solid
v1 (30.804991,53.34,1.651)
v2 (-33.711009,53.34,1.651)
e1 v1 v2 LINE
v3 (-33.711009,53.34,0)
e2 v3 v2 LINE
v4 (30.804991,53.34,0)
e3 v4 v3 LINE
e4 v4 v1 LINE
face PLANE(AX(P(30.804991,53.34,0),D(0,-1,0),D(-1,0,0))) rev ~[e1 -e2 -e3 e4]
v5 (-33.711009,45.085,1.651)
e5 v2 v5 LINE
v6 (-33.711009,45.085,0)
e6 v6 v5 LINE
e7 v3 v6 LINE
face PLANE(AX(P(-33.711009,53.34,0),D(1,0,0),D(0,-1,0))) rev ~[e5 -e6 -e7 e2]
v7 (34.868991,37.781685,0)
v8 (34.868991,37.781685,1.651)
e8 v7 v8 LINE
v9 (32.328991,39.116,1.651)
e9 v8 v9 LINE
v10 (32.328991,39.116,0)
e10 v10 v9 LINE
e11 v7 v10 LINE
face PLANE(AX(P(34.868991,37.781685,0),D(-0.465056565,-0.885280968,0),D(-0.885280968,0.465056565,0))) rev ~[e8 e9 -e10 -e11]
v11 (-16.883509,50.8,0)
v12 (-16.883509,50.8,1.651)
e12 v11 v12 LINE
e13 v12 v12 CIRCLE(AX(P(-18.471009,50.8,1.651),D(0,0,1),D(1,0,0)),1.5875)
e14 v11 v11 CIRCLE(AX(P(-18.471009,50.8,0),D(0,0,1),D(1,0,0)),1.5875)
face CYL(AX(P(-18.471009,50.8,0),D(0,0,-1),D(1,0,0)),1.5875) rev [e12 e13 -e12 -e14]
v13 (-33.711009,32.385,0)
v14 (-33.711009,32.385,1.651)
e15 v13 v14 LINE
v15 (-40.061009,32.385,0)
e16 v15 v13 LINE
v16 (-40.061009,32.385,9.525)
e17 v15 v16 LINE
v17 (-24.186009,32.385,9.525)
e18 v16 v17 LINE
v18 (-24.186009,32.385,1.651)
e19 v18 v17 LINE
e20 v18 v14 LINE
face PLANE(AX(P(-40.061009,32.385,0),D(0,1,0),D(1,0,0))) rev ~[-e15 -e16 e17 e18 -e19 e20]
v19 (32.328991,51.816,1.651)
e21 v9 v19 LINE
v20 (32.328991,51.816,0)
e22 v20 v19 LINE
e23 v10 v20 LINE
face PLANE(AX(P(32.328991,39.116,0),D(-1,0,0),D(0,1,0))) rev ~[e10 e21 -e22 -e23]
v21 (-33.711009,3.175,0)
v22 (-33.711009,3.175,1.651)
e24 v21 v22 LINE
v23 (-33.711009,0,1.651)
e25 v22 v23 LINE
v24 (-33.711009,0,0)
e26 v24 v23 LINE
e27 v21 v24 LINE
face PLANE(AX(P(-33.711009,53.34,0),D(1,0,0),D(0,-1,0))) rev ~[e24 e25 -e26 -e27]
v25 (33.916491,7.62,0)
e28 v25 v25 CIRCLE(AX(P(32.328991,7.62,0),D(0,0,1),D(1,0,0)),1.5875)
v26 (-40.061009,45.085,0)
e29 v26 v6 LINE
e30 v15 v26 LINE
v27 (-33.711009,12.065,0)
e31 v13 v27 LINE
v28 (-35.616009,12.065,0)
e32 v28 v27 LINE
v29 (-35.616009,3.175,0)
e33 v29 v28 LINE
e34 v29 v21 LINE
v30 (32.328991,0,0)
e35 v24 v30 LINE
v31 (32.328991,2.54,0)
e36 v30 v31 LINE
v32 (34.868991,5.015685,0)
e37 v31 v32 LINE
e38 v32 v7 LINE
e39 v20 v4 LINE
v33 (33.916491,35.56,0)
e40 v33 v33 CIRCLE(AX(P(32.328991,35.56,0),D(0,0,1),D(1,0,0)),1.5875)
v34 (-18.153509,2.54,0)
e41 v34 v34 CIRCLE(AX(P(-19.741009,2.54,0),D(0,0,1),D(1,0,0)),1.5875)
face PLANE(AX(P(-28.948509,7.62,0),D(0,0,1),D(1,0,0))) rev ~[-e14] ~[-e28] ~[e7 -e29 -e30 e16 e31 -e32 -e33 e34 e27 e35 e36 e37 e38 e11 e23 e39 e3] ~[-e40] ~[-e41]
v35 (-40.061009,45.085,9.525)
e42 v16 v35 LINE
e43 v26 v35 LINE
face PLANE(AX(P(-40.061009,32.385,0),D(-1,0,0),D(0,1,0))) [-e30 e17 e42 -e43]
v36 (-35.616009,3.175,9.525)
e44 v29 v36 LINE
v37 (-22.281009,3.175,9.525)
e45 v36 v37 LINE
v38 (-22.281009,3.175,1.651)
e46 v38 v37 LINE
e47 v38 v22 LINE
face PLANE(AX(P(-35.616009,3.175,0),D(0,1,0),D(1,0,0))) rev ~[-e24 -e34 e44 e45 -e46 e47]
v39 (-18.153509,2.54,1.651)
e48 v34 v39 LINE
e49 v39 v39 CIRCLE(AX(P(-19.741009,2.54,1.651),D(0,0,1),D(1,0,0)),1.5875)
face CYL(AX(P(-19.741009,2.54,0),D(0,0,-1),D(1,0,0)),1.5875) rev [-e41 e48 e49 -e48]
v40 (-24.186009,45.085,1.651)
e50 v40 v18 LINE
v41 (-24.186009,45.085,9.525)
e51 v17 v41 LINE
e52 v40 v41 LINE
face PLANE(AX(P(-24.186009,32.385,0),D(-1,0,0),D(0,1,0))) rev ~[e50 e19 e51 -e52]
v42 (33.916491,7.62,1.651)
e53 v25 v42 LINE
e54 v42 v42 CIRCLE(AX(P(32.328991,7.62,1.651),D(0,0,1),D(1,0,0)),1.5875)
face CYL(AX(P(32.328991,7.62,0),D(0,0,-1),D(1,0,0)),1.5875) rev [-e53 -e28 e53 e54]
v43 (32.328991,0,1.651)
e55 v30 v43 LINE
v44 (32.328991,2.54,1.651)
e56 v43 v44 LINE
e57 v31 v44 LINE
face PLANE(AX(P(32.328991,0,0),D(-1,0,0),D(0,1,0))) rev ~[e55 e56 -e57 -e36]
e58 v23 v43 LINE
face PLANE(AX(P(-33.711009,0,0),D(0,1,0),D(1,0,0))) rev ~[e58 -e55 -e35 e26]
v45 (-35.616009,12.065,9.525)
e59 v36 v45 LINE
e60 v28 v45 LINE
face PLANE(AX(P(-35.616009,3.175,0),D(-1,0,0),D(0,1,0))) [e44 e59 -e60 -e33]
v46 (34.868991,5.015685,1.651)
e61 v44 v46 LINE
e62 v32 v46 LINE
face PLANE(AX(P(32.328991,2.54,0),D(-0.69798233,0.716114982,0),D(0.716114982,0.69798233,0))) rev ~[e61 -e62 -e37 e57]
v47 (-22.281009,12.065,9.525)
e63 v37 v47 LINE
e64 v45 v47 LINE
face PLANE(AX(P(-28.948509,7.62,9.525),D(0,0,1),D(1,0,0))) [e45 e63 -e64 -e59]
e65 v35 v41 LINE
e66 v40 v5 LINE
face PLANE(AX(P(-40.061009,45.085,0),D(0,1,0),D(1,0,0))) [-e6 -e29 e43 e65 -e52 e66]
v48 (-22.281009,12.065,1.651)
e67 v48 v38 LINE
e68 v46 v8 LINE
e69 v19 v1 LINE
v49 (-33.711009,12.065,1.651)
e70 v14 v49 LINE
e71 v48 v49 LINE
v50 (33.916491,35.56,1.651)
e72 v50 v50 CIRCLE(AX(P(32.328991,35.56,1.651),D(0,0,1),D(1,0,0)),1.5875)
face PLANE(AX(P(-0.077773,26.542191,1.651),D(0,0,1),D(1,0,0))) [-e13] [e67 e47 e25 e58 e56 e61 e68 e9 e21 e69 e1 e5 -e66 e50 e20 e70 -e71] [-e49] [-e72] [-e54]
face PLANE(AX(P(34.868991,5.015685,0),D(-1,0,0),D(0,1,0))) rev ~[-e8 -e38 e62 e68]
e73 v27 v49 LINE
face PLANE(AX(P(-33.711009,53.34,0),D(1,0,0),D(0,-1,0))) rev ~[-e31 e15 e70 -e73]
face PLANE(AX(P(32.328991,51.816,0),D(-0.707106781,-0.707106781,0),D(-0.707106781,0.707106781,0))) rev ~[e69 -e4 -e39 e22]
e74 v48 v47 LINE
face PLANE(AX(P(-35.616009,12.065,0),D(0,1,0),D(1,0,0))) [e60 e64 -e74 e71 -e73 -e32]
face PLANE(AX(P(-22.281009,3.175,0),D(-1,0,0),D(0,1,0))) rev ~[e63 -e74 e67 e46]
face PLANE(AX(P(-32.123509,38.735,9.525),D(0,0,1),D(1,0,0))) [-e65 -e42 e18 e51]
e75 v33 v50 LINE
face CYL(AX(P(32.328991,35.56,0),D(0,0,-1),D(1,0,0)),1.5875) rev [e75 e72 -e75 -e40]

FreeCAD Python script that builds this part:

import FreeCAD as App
import Part
import Sketcher

V = App.Vector
Q = App.Units.Quantity


def add_polygon(sketch, points):
    """Adds a closed chain of lines whose ends are joined by coincident constraints."""
    first, n = sketch.GeometryCount, len(points)
    for a, b in zip(points, points[1:] + points[:1]):
        sketch.addGeometry(Part.LineSegment(App.Vector(*a, 0), App.Vector(*b, 0)), False)
    for i in range(n):
        sketch.addConstraint(Sketcher.Constraint("Coincident", first + i, 2, first + (i + 1) % n, 1))

doc = App.newDocument("Part")
body = doc.addObject("PartDesign::Body", "Body")

# Sketch on XY plane
sketch1 = body.newObject("Sketcher::SketchObject", "Sketch")
sketch1.AttachmentSupport = (doc.getObject("XY_Plane"), [""])
sketch1.MapMode = "FlatFace"
add_polygon(sketch1, [(-33.7, 53.3), (-33.7, 0), (32.3, 0), (32.3, 2.5), (34.9, 5), (34.9, 37.8), (32.3, 39.1), (32.3, 51.8), (30.8, 53.3)])  # lines 0-8
sketch1.addGeometry(Part.Circle(V(-19.7, 2.5, 0), V(0, 0, 1), 1.6), False)  # 9
sketch1.addGeometry(Part.Circle(V(32.3, 7.6, 0), V(0, 0, 1), 1.6), False)  # 10
sketch1.addGeometry(Part.Circle(V(-18.5, 50.8, 0), V(0, 0, 1), 1.6), False)  # 11
sketch1.addGeometry(Part.Circle(V(32.3, 35.6, 0), V(0, 0, 1), 1.6), False)  # 12
sketch1.addConstraint(Sketcher.Constraint("Vertical", 0))
sketch1.addConstraint(Sketcher.Constraint("Horizontal", 1))
sketch1.addConstraint(Sketcher.Constraint("Vertical", 2))
sketch1.addConstraint(Sketcher.Constraint("Vertical", 4))
sketch1.addConstraint(Sketcher.Constraint("Vertical", 6))
sketch1.addConstraint(Sketcher.Constraint("Horizontal", 8))
sketch1.addConstraint(Sketcher.Constraint("Equal", 9, 10))
sketch1.addConstraint(Sketcher.Constraint("Equal", 10, 11))
sketch1.addConstraint(Sketcher.Constraint("Equal", 11, 12))
sketch1.addConstraint(Sketcher.Constraint("PointOnObject", 0, 2, -1))
sketch1.addConstraint(Sketcher.Constraint("Horizontal", 9, 3, 2, 2))
sketch1.addConstraint(Sketcher.Constraint("Vertical", 10, 3, 12, 3))
sketch1.addConstraint(Sketcher.Constraint("Vertical", 12, 3, 1, 2))
sketch1.addConstraint(Sketcher.Constraint("Vertical", 2, 2, 5, 2))
sketch1.addConstraint(Sketcher.Constraint("Diameter", 9, Q("0.125 in")))
sketch1.addConstraint(Sketcher.Constraint("DistanceX", 1, 1, 1, 2, Q("2.6 in")))
sketch1.addConstraint(Sketcher.Constraint("DistanceY", 0, 2, 0, 1, Q("2.1 in")))
sketch1.addConstraint(Sketcher.Constraint("DistanceY", 2, 1, 2, 2, Q("0.1 in")))
sketch1.addConstraint(Sketcher.Constraint("DistanceY", 6, 1, 6, 2, Q("0.5 in")))
sketch1.addConstraint(Sketcher.Constraint("DistanceY", -1, 1, 11, 3, Q("2 in")))
sketch1.addConstraint(Sketcher.Constraint("Angle", 7, Q("135 deg")))
sketch1.addConstraint(Sketcher.Constraint("DistanceX", 11, 3, 10, 3, Q("2 in")))
sketch1.addConstraint(Sketcher.Constraint("DistanceX", 8, 2, 8, 1, Q("2.54 in")))
sketch1.addConstraint(Sketcher.Constraint("DistanceY", 4, 1, 4, 2, Q("1.29 in")))
sketch1.addConstraint(Sketcher.Constraint("DistanceY", -1, 1, 10, 3, Q("0.3 in")))
sketch1.addConstraint(Sketcher.Constraint("DistanceY", -1, 1, 12, 3, Q("1.4 in")))
sketch1.addConstraint(Sketcher.Constraint("DistanceX", 2, 2, 3, 2, Q("0.1 in")))
sketch1.addConstraint(Sketcher.Constraint("DistanceX", 9, 3, 10, 3, Q("2.05 in")))
sketch1.addConstraint(Sketcher.Constraint("DistanceX", 9, 3, -1, 1, 19.741009))
sketch1.addConstraint(Sketcher.Constraint("Distance", 3, 3.546916))
pad1 = body.newObject("PartDesign::Pad", "Pad")
pad1.Profile = sketch1
pad1.Length = Q("0.065 in")

# Sketch on XY plane
sketch2 = body.newObject("Sketcher::SketchObject", "Sketch001")
sketch2.AttachmentSupport = (doc.getObject("XY_Plane"), [""])
sketch2.MapMode = "FlatFace"
add_polygon(sketch2, [(-36, 12), (-36, 3), (-22, 3), (-22, 12)])  # lines 0-3
add_polygon(sketch2, [(-40, 45), (-40, 32), (-24, 32), (-24, 45)])  # lines 4-7
sketch2.addConstraint(Sketcher.Constraint("Vertical", 0))
sketch2.addConstraint(Sketcher.Constraint("Horizontal", 1))
sketch2.addConstraint(Sketcher.Constraint("Vertical", 2))
sketch2.addConstraint(Sketcher.Constraint("Horizontal", 3))
sketch2.addConstraint(Sketcher.Constraint("Vertical", 4))
sketch2.addConstraint(Sketcher.Constraint("Horizontal", 5))
sketch2.addConstraint(Sketcher.Constraint("Vertical", 6))
sketch2.addConstraint(Sketcher.Constraint("Horizontal", 7))
sketch2.addConstraint(Sketcher.Constraint("DistanceY", 4, 2, 4, 1, Q("0.5 in")))
sketch2.addConstraint(Sketcher.Constraint("DistanceY", 0, 2, 0, 1, Q("0.35 in")))
sketch2.addConstraint(Sketcher.Constraint("DistanceY", 3, 2, 4, 2, Q("0.8 in")))
sketch2.addConstraint(Sketcher.Constraint("DistanceX", 4, 2, 2, 2, Q("0.7 in")))
sketch2.addConstraint(Sketcher.Constraint("DistanceX", 1, 1, 1, 2, Q("0.525 in")))
sketch2.addConstraint(Sketcher.Constraint("DistanceX", 5, 1, 5, 2, Q("0.625 in")))
sketch2.addConstraint(Sketcher.Constraint("DistanceY", -1, 1, 0, 2, Q("0.125 in")))
sketch2.addConstraint(Sketcher.Constraint("DistanceX", 0, 2, -1, 1, 35.616009))
pad2 = body.newObject("PartDesign::Pad", "Pad001")
pad2.Profile = sketch2
pad2.Length = Q("0.375 in")

doc.recompute()
